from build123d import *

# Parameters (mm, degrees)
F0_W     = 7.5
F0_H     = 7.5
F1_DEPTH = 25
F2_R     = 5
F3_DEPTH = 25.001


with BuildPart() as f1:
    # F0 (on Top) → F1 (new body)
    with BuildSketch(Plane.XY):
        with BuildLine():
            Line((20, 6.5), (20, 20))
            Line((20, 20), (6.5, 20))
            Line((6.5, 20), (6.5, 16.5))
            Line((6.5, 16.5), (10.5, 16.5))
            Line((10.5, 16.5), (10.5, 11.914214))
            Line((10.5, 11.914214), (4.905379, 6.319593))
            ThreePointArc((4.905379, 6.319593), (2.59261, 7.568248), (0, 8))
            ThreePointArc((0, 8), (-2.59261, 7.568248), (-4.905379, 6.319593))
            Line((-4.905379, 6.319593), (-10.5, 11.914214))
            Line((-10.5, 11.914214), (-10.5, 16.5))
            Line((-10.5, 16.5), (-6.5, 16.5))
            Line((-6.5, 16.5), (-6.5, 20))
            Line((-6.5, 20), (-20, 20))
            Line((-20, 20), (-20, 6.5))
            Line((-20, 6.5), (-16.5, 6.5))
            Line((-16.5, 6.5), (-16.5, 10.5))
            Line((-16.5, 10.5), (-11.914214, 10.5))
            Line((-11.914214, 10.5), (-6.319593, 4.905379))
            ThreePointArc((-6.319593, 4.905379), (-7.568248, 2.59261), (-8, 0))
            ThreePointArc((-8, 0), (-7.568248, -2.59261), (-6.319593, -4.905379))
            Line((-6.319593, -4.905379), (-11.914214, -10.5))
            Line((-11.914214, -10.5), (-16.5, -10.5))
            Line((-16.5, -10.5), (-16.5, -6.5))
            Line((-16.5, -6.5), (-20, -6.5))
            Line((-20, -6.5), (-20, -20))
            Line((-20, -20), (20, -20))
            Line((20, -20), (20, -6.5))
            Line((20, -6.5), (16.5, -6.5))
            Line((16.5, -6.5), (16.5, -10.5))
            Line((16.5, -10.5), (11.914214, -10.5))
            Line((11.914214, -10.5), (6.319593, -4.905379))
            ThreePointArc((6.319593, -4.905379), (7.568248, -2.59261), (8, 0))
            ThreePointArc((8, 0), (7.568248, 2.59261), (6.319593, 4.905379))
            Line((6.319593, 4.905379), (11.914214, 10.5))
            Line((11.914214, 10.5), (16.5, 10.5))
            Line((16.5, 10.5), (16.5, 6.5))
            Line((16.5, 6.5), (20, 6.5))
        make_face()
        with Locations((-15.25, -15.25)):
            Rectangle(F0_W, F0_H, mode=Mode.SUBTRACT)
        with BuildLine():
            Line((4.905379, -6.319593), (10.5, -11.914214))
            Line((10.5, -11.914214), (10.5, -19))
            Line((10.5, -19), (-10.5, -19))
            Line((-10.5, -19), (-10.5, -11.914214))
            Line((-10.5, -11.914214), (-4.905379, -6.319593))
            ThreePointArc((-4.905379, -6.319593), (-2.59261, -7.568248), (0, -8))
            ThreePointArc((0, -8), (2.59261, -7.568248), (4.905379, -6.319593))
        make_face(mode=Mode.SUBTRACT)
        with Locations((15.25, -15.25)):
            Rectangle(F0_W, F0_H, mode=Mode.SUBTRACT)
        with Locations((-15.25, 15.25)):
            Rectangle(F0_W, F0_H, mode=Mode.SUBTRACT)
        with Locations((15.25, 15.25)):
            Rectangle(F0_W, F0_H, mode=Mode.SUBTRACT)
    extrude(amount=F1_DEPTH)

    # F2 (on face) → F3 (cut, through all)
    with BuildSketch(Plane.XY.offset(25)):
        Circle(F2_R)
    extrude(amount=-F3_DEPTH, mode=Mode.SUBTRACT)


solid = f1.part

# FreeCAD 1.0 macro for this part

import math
import FreeCAD as App
import Part
import Sketcher
Q = App.Units.Quantity


def add_polygon(sketch, points):
    """Adds a closed chain of lines whose ends are joined by coincident constraints."""
    first, n = sketch.GeometryCount, len(points)
    for a, b in zip(points, points[1:] + points[:1]):
        sketch.addGeometry(Part.LineSegment(App.Vector(*a, 0), App.Vector(*b, 0)), False)
    for i in range(n):
        sketch.addConstraint(Sketcher.Constraint("Coincident", first + i, 2, first + (i + 1) % n, 1))

doc = App.newDocument("Part")
body = doc.addObject("PartDesign::Body", "Body")

# Sketch on XY plane
sketch1 = body.newObject("Sketcher::SketchObject", "Sketch")
sketch1.AttachmentSupport = (doc.getObject("XY_Plane"), [""])
sketch1.MapMode = "FlatFace"
sketch1.addGeometry(Part.LineSegment(App.Vector(20, 6.5, 0), App.Vector(20, 20, 0)), False)  # 0
sketch1.addGeometry(Part.LineSegment(App.Vector(20, 20, 0), App.Vector(6.5, 20, 0)), False)  # 1
sketch1.addGeometry(Part.LineSegment(App.Vector(6.5, 20, 0), App.Vector(6.5, 16.5, 0)), False)  # 2
sketch1.addGeometry(Part.LineSegment(App.Vector(6.5, 16.5, 0), App.Vector(10.5, 16.5, 0)), False)  # 3
sketch1.addGeometry(Part.LineSegment(App.Vector(10.5, 16.5, 0), App.Vector(10.5, 11.9, 0)), False)  # 4
sketch1.addGeometry(Part.LineSegment(App.Vector(10.5, 11.9, 0), App.Vector(4.9, 6.3, 0)), False)  # 5
sketch1.addGeometry(Part.ArcOfCircle(Part.Circle(App.Vector(0, 0, 0), App.Vector(0, 0, 1), 8), math.radians(52), math.radians(90)), False)  # 6
sketch1.addGeometry(Part.ArcOfCircle(Part.Circle(App.Vector(0, 0, 0), App.Vector(0, 0, 1), 8), math.radians(90), math.radians(128)), False)  # 7
sketch1.addGeometry(Part.LineSegment(App.Vector(-4.9, 6.3, 0), App.Vector(-10.5, 11.9, 0)), False)  # 8
sketch1.addGeometry(Part.LineSegment(App.Vector(-10.5, 11.9, 0), App.Vector(-10.5, 16.5, 0)), False)  # 9
sketch1.addGeometry(Part.LineSegment(App.Vector(-10.5, 16.5, 0), App.Vector(-6.5, 16.5, 0)), False)  # 10
sketch1.addGeometry(Part.LineSegment(App.Vector(-6.5, 16.5, 0), App.Vector(-6.5, 20, 0)), False)  # 11
sketch1.addGeometry(Part.LineSegment(App.Vector(-6.5, 20, 0), App.Vector(-20, 20, 0)), False)  # 12
sketch1.addGeometry(Part.LineSegment(App.Vector(-20, 20, 0), App.Vector(-20, 6.5, 0)), False)  # 13
sketch1.addGeometry(Part.LineSegment(App.Vector(-20, 6.5, 0), App.Vector(-16.5, 6.5, 0)), False)  # 14
sketch1.addGeometry(Part.LineSegment(App.Vector(-16.5, 6.5, 0), App.Vector(-16.5, 10.5, 0)), False)  # 15
sketch1.addGeometry(Part.LineSegment(App.Vector(-16.5, 10.5, 0), App.Vector(-11.9, 10.5, 0)), False)  # 16
sketch1.addGeometry(Part.LineSegment(App.Vector(-11.9, 10.5, 0), App.Vector(-6.3, 4.9, 0)), False)  # 17
sketch1.addGeometry(Part.ArcOfCircle(Part.Circle(App.Vector(0, 0, 0), App.Vector(0, 0, 1), 8), math.radians(142), math.radians(180)), False)  # 18
sketch1.addGeometry(Part.ArcOfCircle(Part.Circle(App.Vector(0, 0, 0), App.Vector(0, 0, 1), 8), math.radians(180), math.radians(218)), False)  # 19
sketch1.addGeometry(Part.LineSegment(App.Vector(-6.3, -4.9, 0), App.Vector(-11.9, -10.5, 0)), False)  # 20
sketch1.addGeometry(Part.LineSegment(App.Vector(-11.9, -10.5, 0), App.Vector(-16.5, -10.5, 0)), False)  # 21
sketch1.addGeometry(Part.LineSegment(App.Vector(-16.5, -10.5, 0), App.Vector(-16.5, -6.5, 0)), False)  # 22
sketch1.addGeometry(Part.LineSegment(App.Vector(-16.5, -6.5, 0), App.Vector(-20, -6.5, 0)), False)  # 23
sketch1.addGeometry(Part.LineSegment(App.Vector(-20, -6.5, 0), App.Vector(-20, -20, 0)), False)  # 24
sketch1.addGeometry(Part.LineSegment(App.Vector(-20, -20, 0), App.Vector(20, -20, 0)), False)  # 25
sketch1.addGeometry(Part.LineSegment(App.Vector(20, -20, 0), App.Vector(20, -6.5, 0)), False)  # 26
sketch1.addGeometry(Part.LineSegment(App.Vector(20, -6.5, 0), App.Vector(16.5, -6.5, 0)), False)  # 27
sketch1.addGeometry(Part.LineSegment(App.Vector(16.5, -6.5, 0), App.Vector(16.5, -10.5, 0)), False)  # 28
sketch1.addGeometry(Part.LineSegment(App.Vector(16.5, -10.5, 0), App.Vector(11.9, -10.5, 0)), False)  # 29
sketch1.addGeometry(Part.LineSegment(App.Vector(11.9, -10.5, 0), App.Vector(6.3, -4.9, 0)), False)  # 30
sketch1.addGeometry(Part.ArcOfCircle(Part.Circle(App.Vector(0, 0, 0), App.Vector(0, 0, 1), 8), math.radians(-38), math.radians(0)), False)  # 31
sketch1.addGeometry(Part.ArcOfCircle(Part.Circle(App.Vector(0, 0, 0), App.Vector(0, 0, 1), 8), math.radians(0), math.radians(38)), False)  # 32
sketch1.addGeometry(Part.LineSegment(App.Vector(6.3, 4.9, 0), App.Vector(11.9, 10.5, 0)), False)  # 33
sketch1.addGeometry(Part.LineSegment(App.Vector(11.9, 10.5, 0), App.Vector(16.5, 10.5, 0)), False)  # 34
sketch1.addGeometry(Part.LineSegment(App.Vector(16.5, 10.5, 0), App.Vector(16.5, 6.5, 0)), False)  # 35
sketch1.addGeometry(Part.LineSegment(App.Vector(16.5, 6.5, 0), App.Vector(20, 6.5, 0)), False)  # 36
add_polygon(sketch1, [(-11.5, -19), (-19, -19), (-19, -11.5), (-11.5, -11.5)])  # lines 37-40
sketch1.addGeometry(Part.ArcOfCircle(Part.Circle(App.Vector(0, 0, 0), App.Vector(0, 0, 1), 8), math.radians(-90), math.radians(-52)), False)  # 41
sketch1.addGeometry(Part.LineSegment(App.Vector(4.9, -6.3, 0), App.Vector(10.5, -11.9, 0)), False)  # 42
sketch1.addGeometry(Part.LineSegment(App.Vector(10.5, -11.9, 0), App.Vector(10.5, -19, 0)), False)  # 43
sketch1.addGeometry(Part.LineSegment(App.Vector(10.5, -19, 0), App.Vector(-10.5, -19, 0)), False)  # 44
sketch1.addGeometry(Part.LineSegment(App.Vector(-10.5, -19, 0), App.Vector(-10.5, -11.9, 0)), False)  # 45
sketch1.addGeometry(Part.LineSegment(App.Vector(-10.5, -11.9, 0), App.Vector(-4.9, -6.3, 0)), False)  # 46
sketch1.addGeometry(Part.ArcOfCircle(Part.Circle(App.Vector(0, 0, 0), App.Vector(0, 0, 1), 8), math.radians(-128), math.radians(-90)), False)  # 47
add_polygon(sketch1, [(19, -19), (11.5, -19), (11.5, -11.5), (19, -11.5)])  # lines 48-51
add_polygon(sketch1, [(-11.5, 11.5), (-19, 11.5), (-19, 19), (-11.5, 19)])  # lines 52-55
add_polygon(sketch1, [(19, 11.5), (11.5, 11.5), (11.5, 19), (19, 19)])  # lines 56-59
sketch1.addConstraint(Sketcher.Constraint("Coincident", 0, 2, 1, 1))
sketch1.addConstraint(Sketcher.Constraint("Coincident", 1, 2, 2, 1))
sketch1.addConstraint(Sketcher.Constraint("Coincident", 2, 2, 3, 1))
sketch1.addConstraint(Sketcher.Constraint("Coincident", 3, 2, 4, 1))
sketch1.addConstraint(Sketcher.Constraint("Coincident", 4, 2, 5, 1))
sketch1.addConstraint(Sketcher.Constraint("Coincident", 5, 2, 6, 1))
sketch1.addConstraint(Sketcher.Constraint("Tangent", 6, 2, 7, 1))
sketch1.addConstraint(Sketcher.Constraint("Coincident", 7, 2, 8, 1))
sketch1.addConstraint(Sketcher.Constraint("Coincident", 8, 2, 9, 1))
sketch1.addConstraint(Sketcher.Constraint("Coincident", 9, 2, 10, 1))
sketch1.addConstraint(Sketcher.Constraint("Coincident", 10, 2, 11, 1))
sketch1.addConstraint(Sketcher.Constraint("Coincident", 11, 2, 12, 1))
sketch1.addConstraint(Sketcher.Constraint("Coincident", 12, 2, 13, 1))
sketch1.addConstraint(Sketcher.Constraint("Coincident", 13, 2, 14, 1))
sketch1.addConstraint(Sketcher.Constraint("Coincident", 14, 2, 15, 1))
sketch1.addConstraint(Sketcher.Constraint("Coincident", 15, 2, 16, 1))
sketch1.addConstraint(Sketcher.Constraint("Coincident", 16, 2, 17, 1))
sketch1.addConstraint(Sketcher.Constraint("Coincident", 17, 2, 18, 1))
sketch1.addConstraint(Sketcher.Constraint("Tangent", 18, 2, 19, 1))
sketch1.addConstraint(Sketcher.Constraint("Coincident", 19, 2, 20, 1))
sketch1.addConstraint(Sketcher.Constraint("Coincident", 20, 2, 21, 1))
sketch1.addConstraint(Sketcher.Constraint("Coincident", 21, 2, 22, 1))
sketch1.addConstraint(Sketcher.Constraint("Coincident", 22, 2, 23, 1))
sketch1.addConstraint(Sketcher.Constraint("Coincident", 23, 2, 24, 1))
sketch1.addConstraint(Sketcher.Constraint("Coincident", 24, 2, 25, 1))
sketch1.addConstraint(Sketcher.Constraint("Coincident", 25, 2, 26, 1))
sketch1.addConstraint(Sketcher.Constraint("Coincident", 26, 2, 27, 1))
sketch1.addConstraint(Sketcher.Constraint("Coincident", 27, 2, 28, 1))
sketch1.addConstraint(Sketcher.Constraint("Coincident", 28, 2, 29, 1))
sketch1.addConstraint(Sketcher.Constraint("Coincident", 29, 2, 30, 1))
sketch1.addConstraint(Sketcher.Constraint("Coincident", 30, 2, 31, 1))
sketch1.addConstraint(Sketcher.Constraint("Tangent", 31, 2, 32, 1))
sketch1.addConstraint(Sketcher.Constraint("Coincident", 32, 2, 33, 1))
sketch1.addConstraint(Sketcher.Constraint("Coincident", 33, 2, 34, 1))
sketch1.addConstraint(Sketcher.Constraint("Coincident", 34, 2, 35, 1))
sketch1.addConstraint(Sketcher.Constraint("Coincident", 35, 2, 36, 1))
sketch1.addConstraint(Sketcher.Constraint("Coincident", 36, 2, 0, 1))
sketch1.addConstraint(Sketcher.Constraint("Coincident", 41, 2, 42, 1))
sketch1.addConstraint(Sketcher.Constraint("Coincident", 42, 2, 43, 1))
sketch1.addConstraint(Sketcher.Constraint("Coincident", 43, 2, 44, 1))
sketch1.addConstraint(Sketcher.Constraint("Coincident", 44, 2, 45, 1))
sketch1.addConstraint(Sketcher.Constraint("Coincident", 45, 2, 46, 1))
sketch1.addConstraint(Sketcher.Constraint("Coincident", 46, 2, 47, 1))
sketch1.addConstraint(Sketcher.Constraint("Tangent", 47, 2, 41, 1))
sketch1.addConstraint(Sketcher.Constraint("Vertical", 0))
sketch1.addConstraint(Sketcher.Constraint("Horizontal", 1))
sketch1.addConstraint(Sketcher.Constraint("Vertical", 2))
sketch1.addConstraint(Sketcher.Constraint("Horizontal", 3))
sketch1.addConstraint(Sketcher.Constraint("Vertical", 4))
sketch1.addConstraint(Sketcher.Constraint("Vertical", 9))
sketch1.addConstraint(Sketcher.Constraint("Horizontal", 10))
sketch1.addConstraint(Sketcher.Constraint("Vertical", 11))
sketch1.addConstraint(Sketcher.Constraint("Horizontal", 12))
sketch1.addConstraint(Sketcher.Constraint("Vertical", 13))
sketch1.addConstraint(Sketcher.Constraint("Horizontal", 14))
sketch1.addConstraint(Sketcher.Constraint("Vertical", 15))
sketch1.addConstraint(Sketcher.Constraint("Horizontal", 16))
sketch1.addConstraint(Sketcher.Constraint("Horizontal", 21))
sketch1.addConstraint(Sketcher.Constraint("Vertical", 22))
sketch1.addConstraint(Sketcher.Constraint("Horizontal", 23))
sketch1.addConstraint(Sketcher.Constraint("Vertical", 24))
sketch1.addConstraint(Sketcher.Constraint("Horizontal", 25))
sketch1.addConstraint(Sketcher.Constraint("Vertical", 26))
sketch1.addConstraint(Sketcher.Constraint("Horizontal", 27))
sketch1.addConstraint(Sketcher.Constraint("Vertical", 28))
sketch1.addConstraint(Sketcher.Constraint("Horizontal", 29))
sketch1.addConstraint(Sketcher.Constraint("Horizontal", 34))
sketch1.addConstraint(Sketcher.Constraint("Vertical", 35))
sketch1.addConstraint(Sketcher.Constraint("Horizontal", 36))
sketch1.addConstraint(Sketcher.Constraint("Horizontal", 37))
sketch1.addConstraint(Sketcher.Constraint("Vertical", 38))
sketch1.addConstraint(Sketcher.Constraint("Horizontal", 39))
sketch1.addConstraint(Sketcher.Constraint("Vertical", 40))
sketch1.addConstraint(Sketcher.Constraint("Vertical", 43))
sketch1.addConstraint(Sketcher.Constraint("Horizontal", 44))
sketch1.addConstraint(Sketcher.Constraint("Vertical", 45))
sketch1.addConstraint(Sketcher.Constraint("Horizontal", 48))
sketch1.addConstraint(Sketcher.Constraint("Vertical", 49))
sketch1.addConstraint(Sketcher.Constraint("Horizontal", 50))
sketch1.addConstraint(Sketcher.Constraint("Vertical", 51))
sketch1.addConstraint(Sketcher.Constraint("Horizontal", 52))
sketch1.addConstraint(Sketcher.Constraint("Vertical", 53))
sketch1.addConstraint(Sketcher.Constraint("Horizontal", 54))
sketch1.addConstraint(Sketcher.Constraint("Vertical", 55))
sketch1.addConstraint(Sketcher.Constraint("Horizontal", 56))
sketch1.addConstraint(Sketcher.Constraint("Vertical", 57))
sketch1.addConstraint(Sketcher.Constraint("Horizontal", 58))
sketch1.addConstraint(Sketcher.Constraint("Vertical", 59))
sketch1.addConstraint(Sketcher.Constraint("Coincident", 6, 3, -1, 1))
sketch1.addConstraint(Sketcher.Constraint("Coincident", 18, 3, -1, 1))
sketch1.addConstraint(Sketcher.Constraint("Coincident", 31, 3, -1, 1))
sketch1.addConstraint(Sketcher.Constraint("Coincident", 41, 3, -1, 1))
sketch1.addConstraint(Sketcher.Constraint("Coincident", 19, 3, 7, 3))
sketch1.addConstraint(Sketcher.Constraint("Equal", 7, 18))
sketch1.addConstraint(Sketcher.Constraint("Equal", 19, 31))
sketch1.addConstraint(Sketcher.Constraint("Equal", 31, 32))
sketch1.addConstraint(Sketcher.Constraint("Equal", 32, 41))
sketch1.addConstraint(Sketcher.Constraint("Equal", 41, 47))
sketch1.addConstraint(Sketcher.Constraint("Symmetric", 0, 2, 24, 2, -1, 1))
sketch1.addConstraint(Sketcher.Constraint("Symmetric", 12, 2, 25, 2, -1, 1))
sketch1.addConstraint(Sketcher.Constraint("Symmetric", 14, 2, 27, 2, -1, 1))
sketch1.addConstraint(Sketcher.Constraint("Symmetric", 16, 2, 29, 2, -1, 1))
sketch1.addConstraint(Sketcher.Constraint("Symmetric", 20, 2, 33, 2, -1, 1))
sketch1.addConstraint(Sketcher.Constraint("Symmetric", 22, 2, 35, 2, -1, 1))
sketch1.addConstraint(Sketcher.Constraint("Symmetric", 8, 2, 42, 2, -1, 1))
sketch1.addConstraint(Sketcher.Constraint("Symmetric", 4, 2, 45, 2, -1, 1))
sketch1.addConstraint(Sketcher.Constraint("Symmetric", 50, 2, 52, 2, -1, 1))
sketch1.addConstraint(Sketcher.Constraint("Symmetric", 48, 2, 54, 2, -1, 1))
sketch1.addConstraint(Sketcher.Constraint("Symmetric", 39, 2, 56, 2, -1, 1))
sketch1.addConstraint(Sketcher.Constraint("Symmetric", 37, 2, 58, 2, -1, 1))
sketch1.addConstraint(Sketcher.Constraint("Symmetric", 4, 2, 8, 2, -2))
sketch1.addConstraint(Sketcher.Constraint("Symmetric", 2, 2, 10, 2, -2))
sketch1.addConstraint(Sketcher.Constraint("Symmetric", 23, 2, 26, 2, -2))
sketch1.addConstraint(Sketcher.Constraint("Symmetric", 21, 2, 28, 2, -2))
sketch1.addConstraint(Sketcher.Constraint("Symmetric", 40, 2, 48, 2, -2))
sketch1.addConstraint(Sketcher.Constraint("Symmetric", 38, 2, 50, 2, -2))
sketch1.addConstraint(Sketcher.Constraint("PointOnObject", 6, 2, -2))
sketch1.addConstraint(Sketcher.Constraint("PointOnObject", 18, 2, -1))
sketch1.addConstraint(Sketcher.Constraint("PointOnObject", 31, 2, -1))
sketch1.addConstraint(Sketcher.Constraint("PointOnObject", 47, 2, -2))
sketch1.addConstraint(Sketcher.Constraint("Perpendicular", 5, 8))
sketch1.addConstraint(Sketcher.Constraint("Parallel", 8, 17))
sketch1.addConstraint(Sketcher.Constraint("Perpendicular", 17, 20))
sketch1.addConstraint(Sketcher.Constraint("Perpendicular", 20, 30))
sketch1.addConstraint(Sketcher.Constraint("Perpendicular", 30, 33))
sketch1.addConstraint(Sketcher.Constraint("Perpendicular", 33, 42))
sketch1.addConstraint(Sketcher.Constraint("Perpendicular", 42, 46))
sketch1.addConstraint(Sketcher.Constraint("Horizontal", 5, 2, 7, 2))
sketch1.addConstraint(Sketcher.Constraint("Horizontal", 19, 2, 30, 2))
sketch1.addConstraint(Sketcher.Constraint("Horizontal", 40, 2, 43, 2))
sketch1.addConstraint(Sketcher.Constraint("Equal", 12, 0))
sketch1.addConstraint(Sketcher.Constraint("Equal", 36, 2))
sketch1.addConstraint(Sketcher.Constraint("Equal", 34, 4))
sketch1.addConstraint(Sketcher.Constraint("Equal", 10, 15))
sketch1.addConstraint(Sketcher.Constraint("Equal", 58, 38))
sketch1.addConstraint(Sketcher.Constraint("Equal", 8, 17))
sketch1.addConstraint(Sketcher.Constraint("DistanceX", 3, 1, 3, 2, Q("4 mm")))
sketch1.addConstraint(Sketcher.Constraint("DistanceX", 25, 1, 25, 2, Q("40 mm")))
sketch1.addConstraint(Sketcher.Constraint("DistanceX", 44, 2, 44, 1, Q("21 mm")))
sketch1.addConstraint(Sketcher.Constraint("DistanceX", 14, 1, 14, 2, Q("3.5 mm")))
sketch1.addConstraint(Sketcher.Constraint("DistanceX", 37, 2, 37, 1, Q("7.5 mm")))
sketch1.addConstraint(Sketcher.Constraint("DistanceY", -1, 1, 6, 2, Q("8 mm")))
sketch1.addConstraint(Sketcher.Constraint("DistanceX", 37, 2, -1, 1, Q("19 mm")))
sketch1.addConstraint(Sketcher.Constraint("DistanceY", 37, 2, -1, 1, Q("19 mm")))
sketch1.addConstraint(Sketcher.Constraint("Distance", 5, Q("7.911989 mm")))
pad1 = body.newObject("PartDesign::Pad", "Pad")
pad1.Profile = sketch1
pad1.Length = 25

# Sketch on XY plane
sketch2 = body.newObject("Sketcher::SketchObject", "Sketch001")
sketch2.AttachmentSupport = (doc.getObject("XY_Plane"), [""])
sketch2.MapMode = "FlatFace"
sketch2.AttachmentOffset = App.Placement(App.Vector(0, 0, 25), App.Rotation())
sketch2.addGeometry(Part.Circle(App.Vector(0, 0, 0), App.Vector(0, 0, 1), 5), False)
sketch2.addConstraint(Sketcher.Constraint("Coincident", 0, 3, -1, 1))
sketch2.addConstraint(Sketcher.Constraint("Diameter", 0, Q("10 mm")))
pocket1 = body.newObject("PartDesign::Pocket", "Pocket")
pocket1.Profile = sketch2
pocket1.Type = "ThroughAll"

doc.recompute()
